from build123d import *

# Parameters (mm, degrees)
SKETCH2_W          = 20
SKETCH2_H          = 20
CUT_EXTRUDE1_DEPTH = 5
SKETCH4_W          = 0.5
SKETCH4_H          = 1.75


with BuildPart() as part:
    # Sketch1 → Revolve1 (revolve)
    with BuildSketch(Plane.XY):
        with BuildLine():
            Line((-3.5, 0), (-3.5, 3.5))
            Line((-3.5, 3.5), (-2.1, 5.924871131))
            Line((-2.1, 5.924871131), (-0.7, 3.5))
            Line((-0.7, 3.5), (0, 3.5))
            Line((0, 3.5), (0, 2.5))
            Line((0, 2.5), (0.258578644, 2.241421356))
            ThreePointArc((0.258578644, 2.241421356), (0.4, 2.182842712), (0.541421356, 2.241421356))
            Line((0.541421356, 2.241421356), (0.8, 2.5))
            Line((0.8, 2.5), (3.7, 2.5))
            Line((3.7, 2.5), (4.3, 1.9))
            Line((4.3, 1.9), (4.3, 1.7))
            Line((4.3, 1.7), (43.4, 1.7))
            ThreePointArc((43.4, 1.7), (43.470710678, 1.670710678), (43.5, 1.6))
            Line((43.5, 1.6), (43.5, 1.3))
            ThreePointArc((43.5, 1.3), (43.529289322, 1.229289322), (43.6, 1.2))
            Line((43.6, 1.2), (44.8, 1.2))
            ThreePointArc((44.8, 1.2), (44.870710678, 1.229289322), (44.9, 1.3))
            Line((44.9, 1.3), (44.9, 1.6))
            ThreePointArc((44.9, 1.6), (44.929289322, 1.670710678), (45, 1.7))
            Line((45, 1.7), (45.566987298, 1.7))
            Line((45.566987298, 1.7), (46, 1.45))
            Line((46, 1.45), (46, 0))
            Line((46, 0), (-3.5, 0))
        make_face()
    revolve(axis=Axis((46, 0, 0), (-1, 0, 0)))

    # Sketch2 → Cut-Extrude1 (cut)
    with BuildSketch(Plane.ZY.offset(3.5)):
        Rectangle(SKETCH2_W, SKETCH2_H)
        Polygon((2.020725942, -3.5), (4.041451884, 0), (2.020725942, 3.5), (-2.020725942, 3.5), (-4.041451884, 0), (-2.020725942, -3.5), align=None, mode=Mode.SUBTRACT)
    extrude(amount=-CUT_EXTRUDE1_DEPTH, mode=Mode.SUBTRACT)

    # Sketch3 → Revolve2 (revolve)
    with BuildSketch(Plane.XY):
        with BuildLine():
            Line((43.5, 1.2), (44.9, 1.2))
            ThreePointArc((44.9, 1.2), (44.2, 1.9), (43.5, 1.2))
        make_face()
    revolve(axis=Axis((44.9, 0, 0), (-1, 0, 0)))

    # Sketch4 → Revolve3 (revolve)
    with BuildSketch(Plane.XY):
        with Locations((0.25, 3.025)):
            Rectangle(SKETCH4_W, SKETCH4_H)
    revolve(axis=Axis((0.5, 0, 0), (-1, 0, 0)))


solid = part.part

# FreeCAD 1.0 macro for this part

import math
import FreeCAD as App
import Part
import Sketcher

V = App.Vector
Q = App.Units.Quantity


def add_polygon(sketch, points):
    """Adds a closed chain of lines whose ends are joined by coincident constraints."""
    first, n = sketch.GeometryCount, len(points)
    for a, b in zip(points, points[1:] + points[:1]):
        sketch.addGeometry(Part.LineSegment(App.Vector(*a, 0), App.Vector(*b, 0)), False)
    for i in range(n):
        sketch.addConstraint(Sketcher.Constraint("Coincident", first + i, 2, first + (i + 1) % n, 1))

doc = App.newDocument("Part")
params = doc.addObject("Spreadsheet::Sheet", "Params")
for row, (alias, value) in enumerate([
    ("sketch1_radius", "0.1 mm"),
    ("sketch1_radius2", "0.2 mm"),
    ("sketch1_height", "1 mm"),
    ("sketch1_width", "49.5 mm"),
    ("sketch1_width2", "1.2 mm"),
    ("revolution_angle", "360 deg"),
    ("sketch2_width", "20 mm"),
    ("pocket1_length", "5 mm"),
    ("sketch3_radius", "0.7 mm"),
    ("revolution2_angle", "360 deg"),
    ("sketch4_width", "0.5 mm"),
    ("sketch4_height", "1.75 mm"),
    ("revolution3_angle", "360 deg"),
], start=1):
    params.set(f"A{row}", alias)
    params.set(f"B{row}", "=" + value)
    params.setAlias(f"B{row}", alias)

body = doc.addObject("PartDesign::Body", "Body")

sketch1 = body.newObject("Sketcher::SketchObject", "Sketch")
sketch1.AttachmentSupport = (doc.getObject("XY_Plane"), [""])
sketch1.MapMode = "FlatFace"
sketch1.addGeometry([
    Part.LineSegment(V(-3.5, 3.5, 0), V(-3.5, 0, 0)),
    Part.LineSegment(V(-3.5, 0, 0), V(46, 0, 0)),
    Part.LineSegment(V(46, 0, 0), V(46, 1.45, 0)),
    Part.LineSegment(V(46, 1.45, 0), V(45.57, 1.7, 0)),
    Part.LineSegment(V(45.57, 1.7, 0), V(45, 1.7, 0)),
    Part.ArcOfCircle(Part.Circle(V(45, 1.6, 0), V(0, 0, 1), 0.1), math.radians(90), math.radians(180)),
    Part.LineSegment(V(44.9, 1.6, 0), V(44.9, 1.3, 0)),
    Part.ArcOfCircle(Part.Circle(V(44.8, 1.3, 0), V(0, 0, 1), 0.1), math.radians(-90), math.radians(0)),
    Part.LineSegment(V(44.8, 1.2, 0), V(43.6, 1.2, 0)),
    Part.ArcOfCircle(Part.Circle(V(43.6, 1.3, 0), V(0, 0, 1), 0.1), math.radians(180), math.radians(270)),
    Part.LineSegment(V(43.5, 1.3, 0), V(43.5, 1.6, 0)),
    Part.ArcOfCircle(Part.Circle(V(43.4, 1.6, 0), V(0, 0, 1), 0.1), math.radians(0), math.radians(90)),
    Part.LineSegment(V(43.4, 1.7, 0), V(4.3, 1.7, 0)),
    Part.LineSegment(V(4.3, 1.7, 0), V(4.3, 1.9, 0)),
    Part.LineSegment(V(4.3, 1.9, 0), V(3.7, 2.5, 0)),
    Part.LineSegment(V(3.7, 2.5, 0), V(0.8, 2.5, 0)),
    Part.LineSegment(V(0.8, 2.5, 0), V(0.54, 2.24, 0)),
    Part.ArcOfCircle(Part.Circle(V(0.4, 2.38, 0), V(0, 0, 1), 0.2), math.radians(-135), math.radians(-45)),
    Part.LineSegment(V(0.26, 2.24, 0), V(0, 2.5, 0)),
    Part.LineSegment(V(0, 2.5, 0), V(0, 3.5, 0)),
    Part.LineSegment(V(0, 3.5, 0), V(-0.7, 3.5, 0)),
    Part.LineSegment(V(-0.7, 3.5, 0), V(-2.1, 5.92, 0)),
    Part.LineSegment(V(-2.1, 5.92, 0), V(-3.5, 3.5, 0)),
], False)
sketch1.addConstraint([
    Sketcher.Constraint("Coincident", 0, 2, 1, 1),
    Sketcher.Constraint("Coincident", 1, 2, 2, 1),
    Sketcher.Constraint("Coincident", 2, 2, 3, 1),
    Sketcher.Constraint("Coincident", 3, 2, 4, 1),
    Sketcher.Constraint("Tangent", 4, 2, 5, 1),
    Sketcher.Constraint("Tangent", 5, 2, 6, 1),
    Sketcher.Constraint("Tangent", 6, 2, 7, 2),
    Sketcher.Constraint("Tangent", 7, 1, 8, 1),
    Sketcher.Constraint("Tangent", 8, 2, 9, 2),
    Sketcher.Constraint("Tangent", 9, 1, 10, 1),
    Sketcher.Constraint("Tangent", 10, 2, 11, 1),
    Sketcher.Constraint("Tangent", 11, 2, 12, 1),
    Sketcher.Constraint("Coincident", 12, 2, 13, 1),
    Sketcher.Constraint("Coincident", 13, 2, 14, 1),
    Sketcher.Constraint("Coincident", 14, 2, 15, 1),
    Sketcher.Constraint("Coincident", 15, 2, 16, 1),
    Sketcher.Constraint("Tangent", 16, 2, 17, 2),
    Sketcher.Constraint("Tangent", 17, 1, 18, 1),
    Sketcher.Constraint("Coincident", 18, 2, 19, 1),
    Sketcher.Constraint("Coincident", 19, 2, 20, 1),
    Sketcher.Constraint("Coincident", 20, 2, 21, 1),
    Sketcher.Constraint("Coincident", 21, 2, 22, 1),
    Sketcher.Constraint("Coincident", 22, 2, 0, 1),
    Sketcher.Constraint("Vertical", 0),
    Sketcher.Constraint("Horizontal", 1),
    Sketcher.Constraint("Vertical", 2),
    Sketcher.Constraint("Horizontal", 4),
    Sketcher.Constraint("Vertical", 6),
    Sketcher.Constraint("Horizontal", 8),
    Sketcher.Constraint("Vertical", 10),
    Sketcher.Constraint("Horizontal", 12),
    Sketcher.Constraint("Vertical", 13),
    Sketcher.Constraint("Horizontal", 15),
    Sketcher.Constraint("Vertical", 19),
    Sketcher.Constraint("Horizontal", 20),
    Sketcher.Constraint("Equal", 5, 7),
    Sketcher.Constraint("Equal", 7, 9),
    Sketcher.Constraint("Equal", 9, 11),
    Sketcher.Constraint("PointOnObject", 0, 2, -1),
    Sketcher.Constraint("PointOnObject", 18, 2, -2),
    Sketcher.Constraint("Perpendicular", 14, 16),
    Sketcher.Constraint("Perpendicular", 16, 18),
    Sketcher.Constraint("Perpendicular", 3, 22),
    Sketcher.Constraint("Horizontal", 5, 3, 11, 3),
    Sketcher.Constraint("Horizontal", 16, 2, 17, 1),
    Sketcher.Constraint("Horizontal", 15, 2, 18, 2),
    Sketcher.Constraint("Horizontal", 20, 2, 22, 2),
    Sketcher.Constraint("Equal", 21, 22),
    Sketcher.Constraint("Radius", 5, 0.1),
    Sketcher.Constraint("Radius", 17, 0.2),
    Sketcher.Constraint("DistanceY", 19, 1, 19, 2, 1.0),
    Sketcher.Constraint("Angle", 3, Q("150 deg")),
    Sketcher.Constraint("DistanceX", 1, 1, 1, 2, 49.5),
    Sketcher.Constraint("DistanceX", 8, 2, 8, 1, 1.2),
    Sketcher.Constraint("DistanceX", 12, 2, 12, 1, 39.1),
    Sketcher.Constraint("DistanceX", 15, 2, 15, 1, 2.9),
    Sketcher.Constraint("DistanceX", 20, 2, 20, 1, 0.7),
    Sketcher.Constraint("DistanceY", 0, 2, 0, 1, 3.5),
    Sketcher.Constraint("DistanceY", 6, 2, 6, 1, 0.3),
    Sketcher.Constraint("DistanceY", 13, 1, 13, 2, 0.2),
    Sketcher.Constraint("DistanceX", -1, 1, 5, 3, 45.0),
    Sketcher.Constraint("DistanceX", -1, 1, 1, 2, 46.0),
    Sketcher.Constraint("DistanceX", 17, 3, 11, 3, 43.0),
    Sketcher.Constraint("Distance", 3, 0.5),
])
sketch1.setExpression("Constraints[48]", "Params.sketch1_radius")
sketch1.setExpression("Constraints[49]", "Params.sketch1_radius2")
sketch1.setExpression("Constraints[50]", "Params.sketch1_height")
sketch1.setExpression("Constraints[52]", "Params.sketch1_width")
sketch1.setExpression("Constraints[53]", "Params.sketch1_width2")
revolution = body.newObject("PartDesign::Revolution", "Revolution")
revolution.Profile = sketch1
revolution.ReferenceAxis = (sketch1, ["H_Axis"])
revolution.setExpression("Angle", "Params.revolution_angle")

sketch2 = body.newObject("Sketcher::SketchObject", "Sketch001")
sketch2.AttachmentSupport = (doc.getObject("YZ_Plane"), [""])
sketch2.MapMode = "FlatFace"
sketch2.AttachmentOffset = App.Placement(V(0, 0, -3.5), App.Rotation())
add_polygon(sketch2, [(10, -10), (-10, -10), (-10, 10), (10, 10)])
add_polygon(sketch2, [(0, 4), (-3.5, 2), (-3.5, -2), (0, -4), (3.5, -2), (3.5, 2)])
sketch2.addConstraint([
    Sketcher.Constraint("Horizontal", 0),
    Sketcher.Constraint("Vertical", 1),
    Sketcher.Constraint("Horizontal", 2),
    Sketcher.Constraint("Vertical", 3),
    Sketcher.Constraint("Vertical", 5),
    Sketcher.Constraint("Vertical", 8),
    Sketcher.Constraint("Symmetric", 0, 2, 2, 2, -1, 1),
    Sketcher.Constraint("Symmetric", 4, 2, 7, 2, -1, 1),
    Sketcher.Constraint("Symmetric", 6, 2, 9, 2, -1, 1),
    Sketcher.Constraint("PointOnObject", 6, 2, -2),
    Sketcher.Constraint("Parallel", 6, 9),
    Sketcher.Constraint("Horizontal", 5, 2, 7, 2),
    Sketcher.Constraint("Equal", 2, 1),
    Sketcher.Constraint("DistanceX", 0, 2, 0, 1, 20.0),
    Sketcher.Constraint("Angle", 4, Q("-150 deg")),
    Sketcher.Constraint("DistanceX", 5, 2, 7, 2, 7.0),
    Sketcher.Constraint("DistanceY", 5, 2, 5, 1, 4.041452),
])
sketch2.setExpression("Constraints[23]", "Params.sketch2_width")
pocket1 = body.newObject("PartDesign::Pocket", "Pocket")
pocket1.Profile = sketch2
pocket1.setExpression("Length", "Params.pocket1_length")
pocket1.Reversed = True

sketch3 = body.newObject("Sketcher::SketchObject", "Sketch002")
sketch3.AttachmentSupport = (doc.getObject("XY_Plane"), [""])
sketch3.MapMode = "FlatFace"
sketch3.addGeometry([
    Part.LineSegment(V(43.5, 1.2, 0), V(44.9, 1.2, 0)),
    Part.ArcOfCircle(Part.Circle(V(44.2, 1.2, 0), V(0, 0, 1), 0.7), math.radians(0), math.radians(180)),
], False)
sketch3.addConstraint([
    Sketcher.Constraint("Coincident", 0, 1, 1, 2),
    Sketcher.Constraint("Coincident", 1, 1, 0, 2),
    Sketcher.Constraint("Horizontal", 0),
    Sketcher.Constraint("Horizontal", 1, 3, 0, 1),
    Sketcher.Constraint("Radius", 1, 0.7),
    Sketcher.Constraint("DistanceX", -1, 1, 1, 3, 44.2),
    Sketcher.Constraint("DistanceY", -1, 1, 1, 3, 1.2),
])
sketch3.setExpression("Constraints[4]", "Params.sketch3_radius")
revolution2 = body.newObject("PartDesign::Revolution", "Revolution001")
revolution2.Profile = sketch3
revolution2.ReferenceAxis = (sketch3, ["H_Axis"])
revolution2.setExpression("Angle", "Params.revolution2_angle")

sketch4 = body.newObject("Sketcher::SketchObject", "Sketch003")
sketch4.AttachmentSupport = (doc.getObject("XY_Plane"), [""])
sketch4.MapMode = "FlatFace"
add_polygon(sketch4, [(0, 3.9), (0, 2.1), (0.5, 2.1), (0.5, 3.9)])
sketch4.addConstraint([
    Sketcher.Constraint("Vertical", 0),
    Sketcher.Constraint("Horizontal", 1),
    Sketcher.Constraint("Vertical", 2),
    Sketcher.Constraint("Horizontal", 3),
    Sketcher.Constraint("PointOnObject", 0, 2, -2),
    Sketcher.Constraint("DistanceX", 1, 1, 1, 2, 0.5),
    Sketcher.Constraint("DistanceY", 0, 2, 0, 1, 1.75),
    Sketcher.Constraint("DistanceY", -1, 1, 2, 2, 3.9),
])
sketch4.setExpression("Constraints[9]", "Params.sketch4_width")
sketch4.setExpression("Constraints[10]", "Params.sketch4_height")
revolution3 = body.newObject("PartDesign::Revolution", "Revolution002")
revolution3.Profile = sketch4
revolution3.ReferenceAxis = (sketch4, ["H_Axis"])
revolution3.setExpression("Angle", "Params.revolution3_angle")

doc.recompute()
